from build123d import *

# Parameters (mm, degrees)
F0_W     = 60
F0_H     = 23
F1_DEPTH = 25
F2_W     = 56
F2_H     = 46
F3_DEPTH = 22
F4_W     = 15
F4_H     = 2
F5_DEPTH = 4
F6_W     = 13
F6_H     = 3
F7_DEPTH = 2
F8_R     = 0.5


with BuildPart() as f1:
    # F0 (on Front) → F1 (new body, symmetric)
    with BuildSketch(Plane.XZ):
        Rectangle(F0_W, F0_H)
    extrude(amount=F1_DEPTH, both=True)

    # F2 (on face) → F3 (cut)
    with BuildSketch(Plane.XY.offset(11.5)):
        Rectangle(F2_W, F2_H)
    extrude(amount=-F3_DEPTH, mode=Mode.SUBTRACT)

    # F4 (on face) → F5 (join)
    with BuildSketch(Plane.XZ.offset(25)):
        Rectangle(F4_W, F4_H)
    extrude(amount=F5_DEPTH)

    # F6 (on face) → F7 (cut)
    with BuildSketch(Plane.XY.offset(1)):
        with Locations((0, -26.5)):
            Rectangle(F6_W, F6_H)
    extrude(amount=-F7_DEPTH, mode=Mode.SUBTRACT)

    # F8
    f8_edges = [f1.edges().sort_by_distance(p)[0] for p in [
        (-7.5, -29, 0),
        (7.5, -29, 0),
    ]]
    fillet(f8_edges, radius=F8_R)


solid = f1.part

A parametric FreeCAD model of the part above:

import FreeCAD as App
import Part
import Sketcher
from FreeCAD import Vector
Q = App.Units.Quantity


def edges_at(feature, points):
    """Names of the edges that pass closest to the given points."""
    edges = feature.Shape.Edges
    near = lambda p: min(range(len(edges)), key=lambda i: edges[i].distToShape(Part.Vertex(*p))[0])
    return sorted({f"Edge{near(p) + 1}" for p in points})


def add_polygon(sketch, points):
    """Adds a closed chain of lines whose ends are joined by coincident constraints."""
    first, n = sketch.GeometryCount, len(points)
    for a, b in zip(points, points[1:] + points[:1]):
        sketch.addGeometry(Part.LineSegment(App.Vector(*a, 0), App.Vector(*b, 0)), False)
    for i in range(n):
        sketch.addConstraint(Sketcher.Constraint("Coincident", first + i, 2, first + (i + 1) % n, 1))

doc = App.newDocument("Part")
body = doc.addObject("PartDesign::Body", "Body")

# Sketch on XZ plane
sketch1 = body.newObject("Sketcher::SketchObject", "Sketch")
sketch1.AttachmentSupport = (doc.getObject("XZ_Plane"), [""])
sketch1.MapMode = "FlatFace"
add_polygon(sketch1, [(-30, 12), (-30, -12), (30, -12), (30, 12)])  # lines 0-3
sketch1.addConstraint([
    Sketcher.Constraint("Vertical", 0),
    Sketcher.Constraint("Horizontal", 1),
    Sketcher.Constraint("Vertical", 2),
    Sketcher.Constraint("Horizontal", 3),
    Sketcher.Constraint("Symmetric", 0, 2, 2, 2, -1, 1),
    Sketcher.Constraint("DistanceX", 1, 1, 1, 2, Q("60 mm")),
    Sketcher.Constraint("DistanceY", 0, 2, 0, 1, Q("23 mm")),
])
pad1 = body.newObject("PartDesign::Pad", "Pad")
pad1.Profile = sketch1
pad1.Length = 50
pad1.Midplane = True

# Sketch on XY plane
sketch2 = body.newObject("Sketcher::SketchObject", "Sketch001")
sketch2.AttachmentSupport = (doc.getObject("XY_Plane"), [""])
sketch2.MapMode = "FlatFace"
sketch2.AttachmentOffset = App.Placement(Vector(0, 0, 11.5), App.Rotation())
add_polygon(sketch2, [(-28, 23), (-28, -23), (28, -23), (28, 23)])  # lines 0-3
sketch2.addConstraint([
    Sketcher.Constraint("Vertical", 0),
    Sketcher.Constraint("Horizontal", 1),
    Sketcher.Constraint("Vertical", 2),
    Sketcher.Constraint("Horizontal", 3),
    Sketcher.Constraint("Symmetric", 0, 2, 2, 2, -1, 1),
    Sketcher.Constraint("DistanceX", 1, 1, 1, 2, Q("56 mm")),
    Sketcher.Constraint("DistanceY", 0, 2, 0, 1, Q("46 mm")),
])
pocket1 = body.newObject("PartDesign::Pocket", "Pocket")
pocket1.Profile = sketch2
pocket1.Length = 22

# Sketch on XZ plane
sketch3 = body.newObject("Sketcher::SketchObject", "Sketch002")
sketch3.AttachmentSupport = (doc.getObject("XZ_Plane"), [""])
sketch3.MapMode = "FlatFace"
sketch3.AttachmentOffset = App.Placement(Vector(0, 0, 25), App.Rotation())
add_polygon(sketch3, [(-7.5, 1), (-7.5, -1), (7.5, -1), (7.5, 1)])  # lines 0-3
sketch3.addConstraint([
    Sketcher.Constraint("Vertical", 0),
    Sketcher.Constraint("Horizontal", 1),
    Sketcher.Constraint("Vertical", 2),
    Sketcher.Constraint("Horizontal", 3),
    Sketcher.Constraint("Symmetric", 0, 2, 2, 2, -1, 1),
    Sketcher.Constraint("DistanceX", 1, 1, 1, 2, Q("15 mm")),
    Sketcher.Constraint("DistanceY", 0, 2, 0, 1, Q("2 mm")),
])
pad2 = body.newObject("PartDesign::Pad", "Pad001")
pad2.Profile = sketch3
pad2.Length = 4

# Sketch on XY plane
sketch4 = body.newObject("Sketcher::SketchObject", "Sketch003")
sketch4.AttachmentSupport = (doc.getObject("XY_Plane"), [""])
sketch4.MapMode = "FlatFace"
sketch4.AttachmentOffset = App.Placement(Vector(0, 0, 1), App.Rotation())
add_polygon(sketch4, [(-6.5, -25), (-6.5, -28), (6.5, -28), (6.5, -25)])  # lines 0-3
sketch4.addConstraint([
    Sketcher.Constraint("Vertical", 0),
    Sketcher.Constraint("Horizontal", 1),
    Sketcher.Constraint("Vertical", 2),
    Sketcher.Constraint("Horizontal", 3),
    Sketcher.Constraint("DistanceX", 1, 1, 1, 2, Q("13 mm")),
    Sketcher.Constraint("DistanceY", 0, 2, 0, 1, Q("3 mm")),
    Sketcher.Constraint("DistanceY", 0, 2, -1, 1, Q("28 mm")),
    Sketcher.Constraint("DistanceX", 0, 2, -1, 1, Q("6.5 mm")),
])
pocket2 = body.newObject("PartDesign::Pocket", "Pocket001")
pocket2.Profile = sketch4
pocket2.Length = 2
doc.recompute()

fillet = body.newObject("PartDesign::Fillet", "Fillet")
fillet.Base = (pocket2, edges_at(pocket2, [(-7.5, -29, 0), (7.5, -29, 0)]))
fillet.Radius = 0.5

doc.recompute()
